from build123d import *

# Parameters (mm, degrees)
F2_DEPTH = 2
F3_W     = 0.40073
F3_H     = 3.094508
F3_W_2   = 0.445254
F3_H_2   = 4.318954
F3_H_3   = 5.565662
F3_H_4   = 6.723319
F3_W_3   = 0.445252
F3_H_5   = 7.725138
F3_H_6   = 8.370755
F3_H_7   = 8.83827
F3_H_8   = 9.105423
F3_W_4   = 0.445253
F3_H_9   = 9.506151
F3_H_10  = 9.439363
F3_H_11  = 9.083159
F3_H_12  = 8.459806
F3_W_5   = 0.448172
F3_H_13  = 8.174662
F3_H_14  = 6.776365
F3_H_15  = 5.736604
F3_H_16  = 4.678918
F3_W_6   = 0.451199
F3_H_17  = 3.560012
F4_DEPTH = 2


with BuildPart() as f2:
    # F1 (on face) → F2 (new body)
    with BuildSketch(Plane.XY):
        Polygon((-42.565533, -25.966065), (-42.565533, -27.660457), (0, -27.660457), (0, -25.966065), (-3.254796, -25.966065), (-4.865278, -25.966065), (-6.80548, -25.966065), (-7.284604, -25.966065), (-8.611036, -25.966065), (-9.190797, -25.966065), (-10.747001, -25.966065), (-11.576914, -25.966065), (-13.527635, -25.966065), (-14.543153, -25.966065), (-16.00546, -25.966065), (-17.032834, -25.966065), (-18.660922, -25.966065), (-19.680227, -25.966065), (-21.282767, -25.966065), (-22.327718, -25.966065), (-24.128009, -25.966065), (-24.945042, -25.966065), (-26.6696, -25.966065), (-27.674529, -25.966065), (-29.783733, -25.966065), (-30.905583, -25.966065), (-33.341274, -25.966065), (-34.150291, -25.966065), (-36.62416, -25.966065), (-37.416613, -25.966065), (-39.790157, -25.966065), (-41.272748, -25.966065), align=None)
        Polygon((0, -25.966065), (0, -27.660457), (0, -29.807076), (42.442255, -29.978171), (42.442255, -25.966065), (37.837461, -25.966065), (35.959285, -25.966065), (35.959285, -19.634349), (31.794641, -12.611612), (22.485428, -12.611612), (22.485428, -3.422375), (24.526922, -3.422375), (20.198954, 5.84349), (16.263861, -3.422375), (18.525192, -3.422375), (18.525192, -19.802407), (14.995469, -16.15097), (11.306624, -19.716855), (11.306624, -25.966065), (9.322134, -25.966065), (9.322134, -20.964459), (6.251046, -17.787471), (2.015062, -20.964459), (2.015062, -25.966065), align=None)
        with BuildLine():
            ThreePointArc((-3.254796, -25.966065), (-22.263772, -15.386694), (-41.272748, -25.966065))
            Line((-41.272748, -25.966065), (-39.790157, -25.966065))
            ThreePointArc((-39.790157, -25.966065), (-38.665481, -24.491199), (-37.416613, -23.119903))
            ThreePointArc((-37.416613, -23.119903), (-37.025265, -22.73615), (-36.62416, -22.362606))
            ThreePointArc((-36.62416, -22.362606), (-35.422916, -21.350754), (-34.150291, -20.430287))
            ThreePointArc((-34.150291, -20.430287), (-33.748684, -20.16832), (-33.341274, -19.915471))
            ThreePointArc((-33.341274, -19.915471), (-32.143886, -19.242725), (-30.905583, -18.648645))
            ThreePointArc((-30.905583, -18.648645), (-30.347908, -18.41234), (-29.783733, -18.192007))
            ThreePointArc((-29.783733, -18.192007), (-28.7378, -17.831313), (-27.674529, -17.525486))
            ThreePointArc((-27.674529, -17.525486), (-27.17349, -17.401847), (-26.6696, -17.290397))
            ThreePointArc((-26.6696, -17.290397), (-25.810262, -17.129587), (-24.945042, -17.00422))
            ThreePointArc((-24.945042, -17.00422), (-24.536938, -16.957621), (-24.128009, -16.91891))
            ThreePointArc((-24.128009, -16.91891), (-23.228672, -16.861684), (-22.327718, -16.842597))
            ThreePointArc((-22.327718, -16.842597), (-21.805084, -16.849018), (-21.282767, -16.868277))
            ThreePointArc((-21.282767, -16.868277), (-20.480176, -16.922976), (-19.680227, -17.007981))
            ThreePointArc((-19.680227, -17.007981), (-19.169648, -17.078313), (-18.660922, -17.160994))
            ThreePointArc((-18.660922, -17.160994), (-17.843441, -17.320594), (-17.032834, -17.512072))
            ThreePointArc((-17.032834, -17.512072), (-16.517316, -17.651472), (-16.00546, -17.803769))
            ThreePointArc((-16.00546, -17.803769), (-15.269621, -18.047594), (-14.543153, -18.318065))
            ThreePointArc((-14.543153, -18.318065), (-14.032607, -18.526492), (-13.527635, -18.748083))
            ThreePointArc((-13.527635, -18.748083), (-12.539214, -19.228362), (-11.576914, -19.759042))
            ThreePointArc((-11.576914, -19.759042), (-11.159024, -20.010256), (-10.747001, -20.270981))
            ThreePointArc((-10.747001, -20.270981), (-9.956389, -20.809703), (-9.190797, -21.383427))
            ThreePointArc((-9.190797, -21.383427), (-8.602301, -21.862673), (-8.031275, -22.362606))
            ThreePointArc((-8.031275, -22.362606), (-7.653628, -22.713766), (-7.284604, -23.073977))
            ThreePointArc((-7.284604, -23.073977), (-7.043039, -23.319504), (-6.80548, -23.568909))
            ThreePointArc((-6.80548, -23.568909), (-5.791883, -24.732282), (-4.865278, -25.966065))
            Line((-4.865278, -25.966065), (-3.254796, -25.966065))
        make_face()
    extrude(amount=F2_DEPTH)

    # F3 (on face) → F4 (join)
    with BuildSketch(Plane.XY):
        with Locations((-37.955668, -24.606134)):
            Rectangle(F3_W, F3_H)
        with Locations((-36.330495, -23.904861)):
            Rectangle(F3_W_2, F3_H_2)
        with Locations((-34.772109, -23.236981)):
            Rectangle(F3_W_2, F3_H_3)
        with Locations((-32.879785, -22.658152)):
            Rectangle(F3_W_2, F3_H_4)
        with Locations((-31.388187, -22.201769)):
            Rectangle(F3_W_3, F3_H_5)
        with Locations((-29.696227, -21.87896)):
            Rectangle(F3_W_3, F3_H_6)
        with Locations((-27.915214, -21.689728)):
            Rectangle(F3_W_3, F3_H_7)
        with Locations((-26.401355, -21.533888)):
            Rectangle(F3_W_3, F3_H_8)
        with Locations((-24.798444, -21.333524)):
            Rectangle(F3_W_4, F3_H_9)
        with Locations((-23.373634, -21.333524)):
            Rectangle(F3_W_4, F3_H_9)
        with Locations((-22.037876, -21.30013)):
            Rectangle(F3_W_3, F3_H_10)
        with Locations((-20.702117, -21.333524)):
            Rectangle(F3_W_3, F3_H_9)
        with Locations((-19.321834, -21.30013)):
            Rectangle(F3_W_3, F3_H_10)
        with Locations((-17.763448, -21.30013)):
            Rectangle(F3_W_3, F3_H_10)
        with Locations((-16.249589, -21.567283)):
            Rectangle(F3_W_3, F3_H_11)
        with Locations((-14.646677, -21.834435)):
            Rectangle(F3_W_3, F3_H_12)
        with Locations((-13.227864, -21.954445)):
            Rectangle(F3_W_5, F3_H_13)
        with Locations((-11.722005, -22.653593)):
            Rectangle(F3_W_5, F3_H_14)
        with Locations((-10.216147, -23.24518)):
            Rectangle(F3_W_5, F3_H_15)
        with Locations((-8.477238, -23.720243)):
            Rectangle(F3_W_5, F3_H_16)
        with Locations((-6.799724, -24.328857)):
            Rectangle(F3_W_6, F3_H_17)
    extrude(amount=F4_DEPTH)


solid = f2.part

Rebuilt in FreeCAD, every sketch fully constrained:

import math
import FreeCAD as App
import Part
import Sketcher
from FreeCAD import Vector
Q = App.Units.Quantity

doc = App.newDocument("Part")
params = doc.addObject("Spreadsheet::Sheet", "Params")
for row, (alias, value) in enumerate([
    ("pad1_length", "2 mm"),
    ("pad2_length", "2 mm"),
], start=1):
    params.set(f"A{row}", alias)
    params.set(f"B{row}", "=" + value)
    params.setAlias(f"B{row}", alias)

body = doc.addObject("PartDesign::Body", "Body")

# Sketch on XY plane
sketch1 = body.newObject("Sketcher::SketchObject", "Sketch")
sketch1.AttachmentSupport = (doc.getObject("XY_Plane"), [""])
sketch1.MapMode = "FlatFace"
sketch1.addGeometry(Part.LineSegment(Vector(-42.565533, -25.966065, 0), Vector(-42.565533, -27.660457, 0)), False)
sketch1.addGeometry(Part.LineSegment(Vector(-42.565533, -27.660457, 0), Vector(0, -27.660457, 0)), False)
sketch1.addGeometry(Part.LineSegment(Vector(0, -27.660457, 0), Vector(0, -29.807076, 0)), False)
sketch1.addGeometry(Part.LineSegment(Vector(0, -29.807076, 0), Vector(42.442255, -29.978171, 0)), False)
sketch1.addGeometry(Part.LineSegment(Vector(42.442255, -29.978171, 0), Vector(42.442255, -25.966065, 0)), False)
sketch1.addGeometry(Part.LineSegment(Vector(42.442255, -25.966065, 0), Vector(35.959285, -25.966065, 0)), False)
sketch1.addGeometry(Part.LineSegment(Vector(35.959285, -25.966065, 0), Vector(35.959285, -19.634349, 0)), False)
sketch1.addGeometry(Part.LineSegment(Vector(35.959285, -19.634349, 0), Vector(31.794641, -12.611612, 0)), False)
sketch1.addGeometry(Part.LineSegment(Vector(31.794641, -12.611612, 0), Vector(22.485428, -12.611612, 0)), False)
sketch1.addGeometry(Part.LineSegment(Vector(22.485428, -12.611612, 0), Vector(22.485428, -3.422375, 0)), False)
sketch1.addGeometry(Part.LineSegment(Vector(22.485428, -3.422375, 0), Vector(24.526922, -3.422375, 0)), False)
sketch1.addGeometry(Part.LineSegment(Vector(24.526922, -3.422375, 0), Vector(20.198954, 5.84349, 0)), False)
sketch1.addGeometry(Part.LineSegment(Vector(20.198954, 5.84349, 0), Vector(16.263861, -3.422375, 0)), False)
sketch1.addGeometry(Part.LineSegment(Vector(16.263861, -3.422375, 0), Vector(18.525192, -3.422375, 0)), False)
sketch1.addGeometry(Part.LineSegment(Vector(18.525192, -3.422375, 0), Vector(18.525192, -19.802407, 0)), False)
sketch1.addGeometry(Part.LineSegment(Vector(18.525192, -19.802407, 0), Vector(14.995469, -16.15097, 0)), False)
sketch1.addGeometry(Part.LineSegment(Vector(14.995469, -16.15097, 0), Vector(11.306624, -19.716855, 0)), False)
sketch1.addGeometry(Part.LineSegment(Vector(11.306624, -19.716855, 0), Vector(11.306624, -25.966065, 0)), False)
sketch1.addGeometry(Part.LineSegment(Vector(11.306624, -25.966065, 0), Vector(9.322134, -25.966065, 0)), False)
sketch1.addGeometry(Part.LineSegment(Vector(9.322134, -25.966065, 0), Vector(9.322134, -20.964459, 0)), False)
sketch1.addGeometry(Part.LineSegment(Vector(9.322134, -20.964459, 0), Vector(6.251046, -17.787471, 0)), False)
sketch1.addGeometry(Part.LineSegment(Vector(6.251046, -17.787471, 0), Vector(2.015062, -20.964459, 0)), False)
sketch1.addGeometry(Part.LineSegment(Vector(2.015062, -20.964459, 0), Vector(2.015062, -25.966065, 0)), False)
sketch1.addGeometry(Part.LineSegment(Vector(2.015062, -25.966065, 0), Vector(-3.254796, -25.966065, 0)), False)
sketch1.addGeometry(Part.ArcOfCircle(Part.Circle(Vector(-22.263772, -37.75401, 0), Vector(0, 0, 1), 22.367316), math.radians(31.804093), math.radians(148.195907)), False)
sketch1.addGeometry(Part.LineSegment(Vector(-41.272748, -25.966065, 0), Vector(-42.565533, -25.966065, 0)), False)
sketch1.addGeometry(Part.LineSegment(Vector(-4.865278, -25.966065, 0), Vector(-39.790157, -25.966065, 0)), False)
sketch1.addGeometry(Part.ArcOfCircle(Part.Circle(Vector(-22.327792, -38.115942, 0), Vector(0, 0, 1), 21.27331), math.radians(135.176701), math.radians(145.17077)), False)
sketch1.addGeometry(Part.ArcOfCircle(Part.Circle(Vector(-22.327565, -38.11616, 0), Vector(0, 0, 1), 21.273624), math.radians(132.224229), math.radians(135.176713)), False)
sketch1.addGeometry(Part.ArcOfCircle(Part.Circle(Vector(-22.327758, -38.115948, 0), Vector(0, 0, 1), 21.273338), math.radians(123.761984), math.radians(132.224228)), False)
sketch1.addGeometry(Part.ArcOfCircle(Part.Circle(Vector(-22.328098, -38.115408, 0), Vector(0, 0, 1), 21.2727), math.radians(121.179041), math.radians(123.762033)), False)
sketch1.addGeometry(Part.ArcOfCircle(Part.Circle(Vector(-22.327656, -38.116117, 0), Vector(0, 0, 1), 21.273535), math.radians(113.779668), math.radians(121.179071)), False)
sketch1.addGeometry(Part.ArcOfCircle(Part.Circle(Vector(-22.327668, -38.116147, 0), Vector(0, 0, 1), 21.273557), math.radians(110.516989), math.radians(113.779605)), False)
sketch1.addGeometry(Part.ArcOfCircle(Part.Circle(Vector(-22.327835, -38.115632, 0), Vector(0, 0, 1), 21.273017), math.radians(104.556637), math.radians(110.517054)), False)
sketch1.addGeometry(Part.ArcOfCircle(Part.Circle(Vector(-22.327227, -38.118047, 0), Vector(0, 0, 1), 21.275507), math.radians(101.776935), math.radians(104.556588)), False)
sketch1.addGeometry(Part.ArcOfCircle(Part.Circle(Vector(-22.327655, -38.11645, 0), Vector(0, 0, 1), 21.273857), math.radians(97.06718), math.radians(101.776684)), False)
sketch1.addGeometry(Part.ArcOfCircle(Part.Circle(Vector(-22.327685, -38.116124, 0), Vector(0, 0, 1), 21.273529), math.radians(94.8546), math.radians(97.067207)), False)
sketch1.addGeometry(Part.ArcOfCircle(Part.Circle(Vector(-22.327709, -38.116182, 0), Vector(0, 0, 1), 21.273585), math.radians(90.000023), math.radians(94.854522)), False)
sketch1.addGeometry(Part.ArcOfCircle(Part.Circle(Vector(-22.327719, -38.115654, 0), Vector(0, 0, 1), 21.273057), math.radians(87.184446), math.radians(89.999997)), False)
sketch1.addGeometry(Part.ArcOfCircle(Part.Circle(Vector(-22.327676, -38.115584, 0), Vector(0, 0, 1), 21.272985), math.radians(82.850935), math.radians(87.184553)), False)
sketch1.addGeometry(Part.ArcOfCircle(Part.Circle(Vector(-22.327621, -38.115334, 0), Vector(0, 0, 1), 21.27273), math.radians(80.074579), math.radians(82.850998)), False)
sketch1.addGeometry(Part.ArcOfCircle(Part.Circle(Vector(-22.327767, -38.116195, 0), Vector(0, 0, 1), 21.273604), math.radians(75.587756), math.radians(80.07459)), False)
sketch1.addGeometry(Part.ArcOfCircle(Part.Circle(Vector(-22.327345, -38.114737, 0), Vector(0, 0, 1), 21.272086), math.radians(72.710998), math.radians(75.587879)), False)
sketch1.addGeometry(Part.ArcOfCircle(Part.Circle(Vector(-22.328019, -38.116863, 0), Vector(0, 0, 1), 21.274316), math.radians(68.535302), math.radians(72.710968)), False)
sketch1.addGeometry(Part.ArcOfCircle(Part.Circle(Vector(-22.32734, -38.115091, 0), Vector(0, 0, 1), 21.272419), math.radians(65.564581), math.radians(68.535258)), False)
sketch1.addGeometry(Part.ArcOfCircle(Part.Circle(Vector(-22.327729, -38.116032, 0), Vector(0, 0, 1), 21.273437), math.radians(59.644527), math.radians(65.564675)), False)
sketch1.addGeometry(Part.ArcOfCircle(Part.Circle(Vector(-22.328183, -38.116769, 0), Vector(0, 0, 1), 21.274302), math.radians(57.018088), math.radians(59.644473)), False)
sketch1.addGeometry(Part.ArcOfCircle(Part.Circle(Vector(-22.327774, -38.116071, 0), Vector(0, 0, 1), 21.273494), math.radians(51.864164), math.radians(57.017989)), False)
sketch1.addGeometry(Part.ArcOfCircle(Part.Circle(Vector(-22.327438, -38.115675, 0), Vector(0, 0, 1), 21.272974), math.radians(47.775753), math.radians(51.864217)), False)
sketch1.addGeometry(Part.ArcOfCircle(Part.Circle(Vector(-22.327175, -38.115451, 0), Vector(0, 0, 1), 21.272632), math.radians(44.997911), math.radians(47.775872)), False)
sketch1.addGeometry(Part.ArcOfCircle(Part.Circle(Vector(-22.33106, -38.119229, 0), Vector(0, 0, 1), 21.278051), math.radians(43.142743), math.radians(44.997709)), False)
sketch1.addGeometry(Part.ArcOfCircle(Part.Circle(Vector(-22.327603, -38.115908, 0), Vector(0, 0, 1), 21.273257), math.radians(34.829216), math.radians(43.142581)), False)
sketch1.addConstraint(Sketcher.Constraint("Coincident", 0, 2, 1, 1))
sketch1.addConstraint(Sketcher.Constraint("Coincident", 1, 2, 2, 1))
sketch1.addConstraint(Sketcher.Constraint("Coincident", 2, 2, 3, 1))
sketch1.addConstraint(Sketcher.Constraint("Coincident", 3, 2, 4, 1))
sketch1.addConstraint(Sketcher.Constraint("Coincident", 4, 2, 5, 1))
sketch1.addConstraint(Sketcher.Constraint("Coincident", 5, 2, 6, 1))
sketch1.addConstraint(Sketcher.Constraint("Coincident", 6, 2, 7, 1))
sketch1.addConstraint(Sketcher.Constraint("Coincident", 7, 2, 8, 1))
sketch1.addConstraint(Sketcher.Constraint("Coincident", 8, 2, 9, 1))
sketch1.addConstraint(Sketcher.Constraint("Coincident", 9, 2, 10, 1))
sketch1.addConstraint(Sketcher.Constraint("Coincident", 10, 2, 11, 1))
sketch1.addConstraint(Sketcher.Constraint("Coincident", 11, 2, 12, 1))
sketch1.addConstraint(Sketcher.Constraint("Coincident", 12, 2, 13, 1))
sketch1.addConstraint(Sketcher.Constraint("Coincident", 13, 2, 14, 1))
sketch1.addConstraint(Sketcher.Constraint("Coincident", 14, 2, 15, 1))
sketch1.addConstraint(Sketcher.Constraint("Coincident", 15, 2, 16, 1))
sketch1.addConstraint(Sketcher.Constraint("Coincident", 16, 2, 17, 1))
sketch1.addConstraint(Sketcher.Constraint("Coincident", 17, 2, 18, 1))
sketch1.addConstraint(Sketcher.Constraint("Coincident", 18, 2, 19, 1))
sketch1.addConstraint(Sketcher.Constraint("Coincident", 19, 2, 20, 1))
sketch1.addConstraint(Sketcher.Constraint("Coincident", 20, 2, 21, 1))
sketch1.addConstraint(Sketcher.Constraint("Coincident", 21, 2, 22, 1))
sketch1.addConstraint(Sketcher.Constraint("Coincident", 22, 2, 23, 1))
sketch1.addConstraint(Sketcher.Constraint("Coincident", 23, 2, 24, 1))
sketch1.addConstraint(Sketcher.Constraint("Coincident", 24, 2, 25, 1))
sketch1.addConstraint(Sketcher.Constraint("Coincident", 25, 2, 0, 1))
sketch1.addConstraint(Sketcher.Constraint("Coincident", 26, 2, 27, 2))
sketch1.addConstraint(Sketcher.Constraint("Coincident", 27, 1, 28, 2))
sketch1.addConstraint(Sketcher.Constraint("Coincident", 28, 1, 29, 2))
sketch1.addConstraint(Sketcher.Constraint("Coincident", 29, 1, 30, 2))
sketch1.addConstraint(Sketcher.Constraint("Coincident", 30, 1, 31, 2))
sketch1.addConstraint(Sketcher.Constraint("Coincident", 31, 1, 32, 2))
sketch1.addConstraint(Sketcher.Constraint("Coincident", 32, 1, 33, 2))
sketch1.addConstraint(Sketcher.Constraint("Coincident", 33, 1, 34, 2))
sketch1.addConstraint(Sketcher.Constraint("Coincident", 34, 1, 35, 2))
sketch1.addConstraint(Sketcher.Constraint("Coincident", 35, 1, 36, 2))
sketch1.addConstraint(Sketcher.Constraint("Coincident", 36, 1, 37, 2))
sketch1.addConstraint(Sketcher.Constraint("Coincident", 37, 1, 38, 2))
sketch1.addConstraint(Sketcher.Constraint("Coincident", 38, 1, 39, 2))
sketch1.addConstraint(Sketcher.Constraint("Coincident", 39, 1, 40, 2))
sketch1.addConstraint(Sketcher.Constraint("Coincident", 40, 1, 41, 2))
sketch1.addConstraint(Sketcher.Constraint("Coincident", 41, 1, 42, 2))
sketch1.addConstraint(Sketcher.Constraint("Coincident", 42, 1, 43, 2))
sketch1.addConstraint(Sketcher.Constraint("Coincident", 43, 1, 44, 2))
sketch1.addConstraint(Sketcher.Constraint("Coincident", 44, 1, 45, 2))
sketch1.addConstraint(Sketcher.Constraint("Coincident", 45, 1, 46, 2))
sketch1.addConstraint(Sketcher.Constraint("Coincident", 46, 1, 47, 2))
sketch1.addConstraint(Sketcher.Constraint("Coincident", 47, 1, 48, 2))
sketch1.addConstraint(Sketcher.Constraint("Coincident", 48, 1, 49, 2))
sketch1.addConstraint(Sketcher.Constraint("Coincident", 49, 1, 50, 2))
sketch1.addConstraint(Sketcher.Constraint("Coincident", 50, 1, 51, 2))
sketch1.addConstraint(Sketcher.Constraint("Coincident", 51, 1, 26, 1))
sketch1.addConstraint(Sketcher.Constraint("Vertical", 0))
sketch1.addConstraint(Sketcher.Constraint("Horizontal", 1))
sketch1.addConstraint(Sketcher.Constraint("Vertical", 2))
sketch1.addConstraint(Sketcher.Constraint("Vertical", 4))
sketch1.addConstraint(Sketcher.Constraint("Horizontal", 5))
sketch1.addConstraint(Sketcher.Constraint("Vertical", 6))
sketch1.addConstraint(Sketcher.Constraint("Horizontal", 8))
sketch1.addConstraint(Sketcher.Constraint("Vertical", 9))
sketch1.addConstraint(Sketcher.Constraint("Horizontal", 10))
sketch1.addConstraint(Sketcher.Constraint("Horizontal", 13))
sketch1.addConstraint(Sketcher.Constraint("Vertical", 14))
sketch1.addConstraint(Sketcher.Constraint("Vertical", 17))
sketch1.addConstraint(Sketcher.Constraint("Horizontal", 18))
sketch1.addConstraint(Sketcher.Constraint("Vertical", 19))
sketch1.addConstraint(Sketcher.Constraint("Vertical", 22))
sketch1.addConstraint(Sketcher.Constraint("Horizontal", 23))
sketch1.addConstraint(Sketcher.Constraint("Horizontal", 25))
sketch1.addConstraint(Sketcher.Constraint("Horizontal", 26))
sketch1.addConstraint(Sketcher.Constraint("PointOnObject", 1, 2, -2))
sketch1.addConstraint(Sketcher.Constraint("Radius", 30, Q("21.2727 mm")))
sketch1.addConstraint(Sketcher.Constraint("Radius", 27, Q("21.27331 mm")))
sketch1.addConstraint(Sketcher.Constraint("Radius", 36, Q("21.273529 mm")))
sketch1.addConstraint(Sketcher.Constraint("Radius", 40, Q("21.27273 mm")))
sketch1.addConstraint(Sketcher.Constraint("Radius", 44, Q("21.272419 mm")))
sketch1.addConstraint(Sketcher.Constraint("Radius", 49, Q("21.272632 mm")))
sketch1.addConstraint(Sketcher.Constraint("Radius", 50, Q("21.278051 mm")))
sketch1.addConstraint(Sketcher.Constraint("DistanceX", 46, 1, -1, 1, Q("10.747001 mm")))
sketch1.addConstraint(Sketcher.Constraint("Radius", 24, Q("22.367316 mm")))
sketch1.addConstraint(Sketcher.Constraint("Radius", 28, Q("21.273624 mm")))
sketch1.addConstraint(Sketcher.Constraint("Radius", 29, Q("21.273338 mm")))
sketch1.addConstraint(Sketcher.Constraint("Radius", 31, Q("21.273535 mm")))
sketch1.addConstraint(Sketcher.Constraint("Radius", 32, Q("21.273557 mm")))
sketch1.addConstraint(Sketcher.Constraint("Radius", 33, Q("21.273017 mm")))
sketch1.addConstraint(Sketcher.Constraint("Radius", 34, Q("21.275507 mm")))
sketch1.addConstraint(Sketcher.Constraint("Radius", 35, Q("21.273857 mm")))
sketch1.addConstraint(Sketcher.Constraint("Radius", 37, Q("21.273585 mm")))
sketch1.addConstraint(Sketcher.Constraint("Radius", 38, Q("21.273057 mm")))
sketch1.addConstraint(Sketcher.Constraint("Radius", 39, Q("21.272985 mm")))
sketch1.addConstraint(Sketcher.Constraint("Radius", 41, Q("21.273604 mm")))
sketch1.addConstraint(Sketcher.Constraint("Radius", 42, Q("21.272086 mm")))
sketch1.addConstraint(Sketcher.Constraint("Radius", 43, Q("21.274316 mm")))
sketch1.addConstraint(Sketcher.Constraint("Radius", 45, Q("21.273437 mm")))
sketch1.addConstraint(Sketcher.Constraint("Radius", 46, Q("21.274302 mm")))
sketch1.addConstraint(Sketcher.Constraint("Radius", 47, Q("21.273494 mm")))
sketch1.addConstraint(Sketcher.Constraint("Radius", 48, Q("21.272974 mm")))
sketch1.addConstraint(Sketcher.Constraint("Radius", 51, Q("21.273257 mm")))
sketch1.addConstraint(Sketcher.Constraint("Distance", 3, Q("42.4426 mm")))
sketch1.addConstraint(Sketcher.Constraint("DistanceX", 5, 2, 5, 1, Q("6.48297 mm")))
sketch1.addConstraint(Sketcher.Constraint("DistanceX", 13, 1, 13, 2, Q("2.261331 mm")))
sketch1.addConstraint(Sketcher.Constraint("DistanceX", 18, 2, 18, 1, Q("1.98449 mm")))
sketch1.addConstraint(Sketcher.Constraint("DistanceX", 26, 2, 26, 1, Q("34.924879 mm")))
sketch1.addConstraint(Sketcher.Constraint("DistanceY", 2, 2, 2, 1, Q("2.146619 mm")))
sketch1.addConstraint(Sketcher.Constraint("DistanceY", 14, 2, 14, 1, Q("16.380032 mm")))
sketch1.addConstraint(Sketcher.Constraint("DistanceY", 17, 2, 17, 1, Q("6.24921 mm")))
sketch1.addConstraint(Sketcher.Constraint("DistanceX", 34, 1, -1, 1, Q("26.6696 mm")))
sketch1.addConstraint(Sketcher.Constraint("Distance", 20, Q("4.418691 mm")))
sketch1.addConstraint(Sketcher.Constraint("Distance", 21, Q("5.29498 mm")))
sketch1.addConstraint(Sketcher.Constraint("DistanceX", 1, 1, 1, 2, Q("42.565533 mm")))
sketch1.addConstraint(Sketcher.Constraint("DistanceX", 8, 2, 8, 1, Q("9.309213 mm")))
sketch1.addConstraint(Sketcher.Constraint("DistanceX", 10, 1, 10, 2, Q("2.041494 mm")))
sketch1.addConstraint(Sketcher.Constraint("DistanceX", 23, 2, 23, 1, Q("5.269858 mm")))
sketch1.addConstraint(Sketcher.Constraint("DistanceX", 25, 2, 25, 1, Q("1.292785 mm")))
sketch1.addConstraint(Sketcher.Constraint("DistanceY", 0, 2, 0, 1, Q("1.694392 mm")))
sketch1.addConstraint(Sketcher.Constraint("DistanceY", 4, 1, 4, 2, Q("4.012106 mm")))
sketch1.addConstraint(Sketcher.Constraint("DistanceY", 6, 1, 6, 2, Q("6.331716 mm")))
sketch1.addConstraint(Sketcher.Constraint("DistanceY", 9, 1, 9, 2, Q("9.189237 mm")))
sketch1.addConstraint(Sketcher.Constraint("DistanceY", 19, 1, 19, 2, Q("5.001606 mm")))
sketch1.addConstraint(Sketcher.Constraint("DistanceY", 22, 2, 22, 1, Q("5.001606 mm")))
sketch1.addConstraint(Sketcher.Constraint("DistanceX", 24, 3, -1, 1, Q("22.263772 mm")))
sketch1.addConstraint(Sketcher.Constraint("DistanceY", 24, 3, -1, 1, Q("37.75401 mm")))
sketch1.addConstraint(Sketcher.Constraint("DistanceX", 27, 3, -1, 1, Q("22.327792 mm")))
sketch1.addConstraint(Sketcher.Constraint("DistanceY", 27, 3, -1, 1, Q("38.115942 mm")))
sketch1.addConstraint(Sketcher.Constraint("DistanceY", 28, 3, -1, 1, Q("38.11616 mm")))
sketch1.addConstraint(Sketcher.Constraint("DistanceX", 29, 3, -1, 1, Q("22.327758 mm")))
sketch1.addConstraint(Sketcher.Constraint("DistanceX", 32, 3, -1, 1, Q("22.327668 mm")))
sketch1.addConstraint(Sketcher.Constraint("DistanceY", 33, 3, -1, 1, Q("38.115632 mm")))
sketch1.addConstraint(Sketcher.Constraint("DistanceY", 35, 3, -1, 1, Q("38.11645 mm")))
sketch1.addConstraint(Sketcher.Constraint("DistanceX", 37, 3, -1, 1, Q("22.327709 mm")))
sketch1.addConstraint(Sketcher.Constraint("DistanceY", 37, 3, -1, 1, Q("38.116182 mm")))
sketch1.addConstraint(Sketcher.Constraint("DistanceX", 38, 3, -1, 1, Q("22.327719 mm")))
sketch1.addConstraint(Sketcher.Constraint("DistanceX", 40, 3, -1, 1, Q("22.327621 mm")))
sketch1.addConstraint(Sketcher.Constraint("DistanceX", 43, 3, -1, 1, Q("22.328019 mm")))
sketch1.addConstraint(Sketcher.Constraint("DistanceX", 44, 3, -1, 1, Q("22.32734 mm")))
sketch1.addConstraint(Sketcher.Constraint("DistanceY", 44, 3, -1, 1, Q("38.115091 mm")))
sketch1.addConstraint(Sketcher.Constraint("DistanceX", 45, 3, -1, 1, Q("22.327729 mm")))
sketch1.addConstraint(Sketcher.Constraint("DistanceY", 46, 3, -1, 1, Q("38.116769 mm")))
sketch1.addConstraint(Sketcher.Constraint("DistanceY", 47, 3, -1, 1, Q("38.116071 mm")))
sketch1.addConstraint(Sketcher.Constraint("DistanceY", 49, 3, -1, 1, Q("38.115451 mm")))
sketch1.addConstraint(Sketcher.Constraint("DistanceX", 50, 3, -1, 1, Q("22.33106 mm")))
sketch1.addConstraint(Sketcher.Constraint("DistanceY", 50, 3, -1, 1, Q("38.119229 mm")))
sketch1.addConstraint(Sketcher.Constraint("DistanceY", 3, 2, -1, 1, Q("29.978171 mm")))
sketch1.addConstraint(Sketcher.Constraint("DistanceX", -1, 1, 7, 2, Q("31.794641 mm")))
sketch1.addConstraint(Sketcher.Constraint("DistanceY", 7, 2, -1, 1, Q("12.611612 mm")))
sketch1.addConstraint(Sketcher.Constraint("DistanceY", -1, 1, 11, 2, Q("5.84349 mm")))
sketch1.addConstraint(Sketcher.Constraint("DistanceX", -1, 1, 12, 2, Q("16.263861 mm")))
sketch1.addConstraint(Sketcher.Constraint("DistanceX", -1, 1, 15, 2, Q("14.995469 mm")))
sketch1.addConstraint(Sketcher.Constraint("DistanceY", 15, 2, -1, 1, Q("16.15097 mm")))
sketch1.addConstraint(Sketcher.Constraint("DistanceY", 19, 2, -1, 1, Q("20.964459 mm")))
sketch1.addConstraint(Sketcher.Constraint("DistanceY", 20, 2, -1, 1, Q("17.787471 mm")))
sketch1.addConstraint(Sketcher.Constraint("DistanceX", -1, 1, 21, 2, Q("2.015062 mm")))
sketch1.addConstraint(Sketcher.Constraint("DistanceX", 28, 1, -1, 1, Q("36.62416 mm")))
sketch1.addConstraint(Sketcher.Constraint("DistanceX", 29, 1, -1, 1, Q("34.150291 mm")))
sketch1.addConstraint(Sketcher.Constraint("DistanceY", 30, 1, -1, 1, Q("19.915471 mm")))
sketch1.addConstraint(Sketcher.Constraint("DistanceX", 33, 1, -1, 1, Q("27.674529 mm")))
sketch1.addConstraint(Sketcher.Constraint("DistanceY", 35, 1, -1, 1, Q("17.00422 mm")))
sketch1.addConstraint(Sketcher.Constraint("DistanceX", 36, 1, -1, 1, Q("24.128009 mm")))
sketch1.addConstraint(Sketcher.Constraint("DistanceX", 37, 1, -1, 1, Q("22.327718 mm")))
sketch1.addConstraint(Sketcher.Constraint("DistanceY", 39, 1, -1, 1, Q("17.007981 mm")))
sketch1.addConstraint(Sketcher.Constraint("DistanceY", 41, 1, -1, 1, Q("17.512072 mm")))
sketch1.addConstraint(Sketcher.Constraint("DistanceX", 42, 1, -1, 1, Q("16.00546 mm")))
sketch1.addConstraint(Sketcher.Constraint("DistanceY", 45, 1, -1, 1, Q("19.759042 mm")))
sketch1.addConstraint(Sketcher.Constraint("DistanceX", 50, 1, -1, 1, Q("6.80548 mm")))
sketch1.addConstraint(Sketcher.Constraint("DistanceX", 51, 1, -1, 1, Q("4.865278 mm")))
sketch1.addConstraint(Sketcher.Constraint("Distance", 11, Q("10.226806 mm")))
sketch1.addConstraint(Sketcher.Constraint("Distance", 12, Q("10.066837 mm")))
sketch1.addConstraint(Sketcher.Constraint("DistanceX", 30, 3, -1, 1, Q("22.328098 mm")))
sketch1.addConstraint(Sketcher.Constraint("DistanceX", 31, 3, -1, 1, Q("22.327656 mm")))
sketch1.addConstraint(Sketcher.Constraint("DistanceX", 34, 3, -1, 1, Q("22.327227 mm")))
sketch1.addConstraint(Sketcher.Constraint("DistanceX", 39, 3, -1, 1, Q("22.327676 mm")))
sketch1.addConstraint(Sketcher.Constraint("DistanceX", 41, 3, -1, 1, Q("22.327767 mm")))
sketch1.addConstraint(Sketcher.Constraint("DistanceX", 27, 1, -1, 1, Q("37.416613 mm")))
sketch1.addConstraint(Sketcher.Constraint("DistanceX", 31, 1, -1, 1, Q("30.905583 mm")))
sketch1.addConstraint(Sketcher.Constraint("DistanceX", 32, 1, -1, 1, Q("29.783733 mm")))
sketch1.addConstraint(Sketcher.Constraint("DistanceX", 38, 1, -1, 1, Q("21.282767 mm")))
sketch1.addConstraint(Sketcher.Constraint("DistanceX", 40, 1, -1, 1, Q("18.660922 mm")))
sketch1.addConstraint(Sketcher.Constraint("DistanceX", 43, 1, -1, 1, Q("14.543153 mm")))
sketch1.addConstraint(Sketcher.Constraint("DistanceX", 44, 1, -1, 1, Q("13.527635 mm")))
sketch1.addConstraint(Sketcher.Constraint("DistanceX", 47, 1, -1, 1, Q("9.190797 mm")))
sketch1.addConstraint(Sketcher.Constraint("DistanceX", 48, 1, -1, 1, Q("8.031275 mm")))
sketch1.addConstraint(Sketcher.Constraint("DistanceX", 49, 1, -1, 1, Q("7.284604 mm")))
pad1 = body.newObject("PartDesign::Pad", "Pad")
pad1.Profile = sketch1
pad1.setExpression("Length", "Params.pad1_length")

# Sketch on XY plane
sketch2 = body.newObject("Sketcher::SketchObject", "Sketch001")
sketch2.AttachmentSupport = (doc.getObject("XY_Plane"), [""])
sketch2.MapMode = "FlatFace"
sketch2.addGeometry(Part.LineSegment(Vector(-38.156033, -23.05888, 0), Vector(-38.156033, -26.153388, 0)), False)
sketch2.addGeometry(Part.LineSegment(Vector(-38.156033, -26.153388, 0), Vector(-37.755303, -26.153388, 0)), False)
sketch2.addGeometry(Part.LineSegment(Vector(-37.755303, -26.153388, 0), Vector(-37.755303, -23.05888, 0)), False)
sketch2.addGeometry(Part.LineSegment(Vector(-37.755303, -23.05888, 0), Vector(-38.156033, -23.05888, 0)), False)
sketch2.addGeometry(Part.LineSegment(Vector(-36.553122, -21.745384, 0), Vector(-36.553122, -26.064338, 0)), False)
sketch2.addGeometry(Part.LineSegment(Vector(-36.553122, -26.064338, 0), Vector(-36.107868, -26.064338, 0)), False)
sketch2.addGeometry(Part.LineSegment(Vector(-36.107868, -26.064338, 0), Vector(-36.107868, -21.745384, 0)), False)
sketch2.addGeometry(Part.LineSegment(Vector(-36.107868, -21.745384, 0), Vector(-36.553122, -21.745384, 0)), False)
sketch2.addGeometry(Part.LineSegment(Vector(-34.994736, -20.45415, 0), Vector(-34.994736, -26.019812, 0)), False)
sketch2.addGeometry(Part.LineSegment(Vector(-34.994736, -26.019812, 0), Vector(-34.549482, -26.019812, 0)), False)
sketch2.addGeometry(Part.LineSegment(Vector(-34.549482, -26.019812, 0), Vector(-34.549482, -20.45415, 0)), False)
sketch2.addGeometry(Part.LineSegment(Vector(-34.549482, -20.45415, 0), Vector(-34.994736, -20.45415, 0)), False)
sketch2.addGeometry(Part.LineSegment(Vector(-33.102412, -19.296492, 0), Vector(-33.102412, -26.019811, 0)), False)
sketch2.addGeometry(Part.LineSegment(Vector(-33.102412, -26.019811, 0), Vector(-32.657158, -26.019811, 0)), False)
sketch2.addGeometry(Part.LineSegment(Vector(-32.657158, -26.019811, 0), Vector(-32.657158, -19.296492, 0)), False)
sketch2.addGeometry(Part.LineSegment(Vector(-32.657158, -19.296492, 0), Vector(-33.102412, -19.296492, 0)), False)
sketch2.addGeometry(Part.LineSegment(Vector(-31.610813, -18.3392, 0), Vector(-31.610813, -26.064338, 0)), False)
sketch2.addGeometry(Part.LineSegment(Vector(-31.610813, -26.064338, 0), Vector(-31.165561, -26.064338, 0)), False)
sketch2.addGeometry(Part.LineSegment(Vector(-31.165561, -26.064338, 0), Vector(-31.165561, -18.3392, 0)), False)
sketch2.addGeometry(Part.LineSegment(Vector(-31.165561, -18.3392, 0), Vector(-31.610813, -18.3392, 0)), False)
sketch2.addGeometry(Part.LineSegment(Vector(-29.918853, -17.693583, 0), Vector(-29.918853, -26.064338, 0)), False)
sketch2.addGeometry(Part.LineSegment(Vector(-29.918853, -26.064338, 0), Vector(-29.473601, -26.064338, 0)), False)
sketch2.addGeometry(Part.LineSegment(Vector(-29.473601, -26.064338, 0), Vector(-29.473601, -17.693583, 0)), False)
sketch2.addGeometry(Part.LineSegment(Vector(-29.473601, -17.693583, 0), Vector(-29.918853, -17.693583, 0)), False)
sketch2.addGeometry(Part.LineSegment(Vector(-28.13784, -17.270593, 0), Vector(-28.13784, -26.108863, 0)), False)
sketch2.addGeometry(Part.LineSegment(Vector(-28.13784, -26.108863, 0), Vector(-27.692588, -26.108863, 0)), False)
sketch2.addGeometry(Part.LineSegment(Vector(-27.692588, -26.108863, 0), Vector(-27.692588, -17.270593, 0)), False)
sketch2.addGeometry(Part.LineSegment(Vector(-27.692588, -17.270593, 0), Vector(-28.13784, -17.270593, 0)), False)
sketch2.addGeometry(Part.LineSegment(Vector(-26.623981, -16.981177, 0), Vector(-26.623981, -26.086599, 0)), False)
sketch2.addGeometry(Part.LineSegment(Vector(-26.623981, -26.086599, 0), Vector(-26.178729, -26.086599, 0)), False)
sketch2.addGeometry(Part.LineSegment(Vector(-26.178729, -26.086599, 0), Vector(-26.178729, -16.981177, 0)), False)
sketch2.addGeometry(Part.LineSegment(Vector(-26.178729, -16.981177, 0), Vector(-26.623981, -16.981177, 0)), False)
sketch2.addGeometry(Part.LineSegment(Vector(-25.021071, -16.580448, 0), Vector(-25.021071, -26.086599, 0)), False)
sketch2.addGeometry(Part.LineSegment(Vector(-25.021071, -26.086599, 0), Vector(-24.575817, -26.086599, 0)), False)
sketch2.addGeometry(Part.LineSegment(Vector(-24.575817, -26.086599, 0), Vector(-24.575817, -16.580448, 0)), False)
sketch2.addGeometry(Part.LineSegment(Vector(-24.575817, -16.580448, 0), Vector(-25.021071, -16.580448, 0)), False)
sketch2.addGeometry(Part.LineSegment(Vector(-23.59626, -16.580448, 0), Vector(-23.59626, -26.086599, 0)), False)
sketch2.addGeometry(Part.LineSegment(Vector(-23.59626, -26.086599, 0), Vector(-23.151007, -26.086599, 0)), False)
sketch2.addGeometry(Part.LineSegment(Vector(-23.151007, -26.086599, 0), Vector(-23.151007, -16.580448, 0)), False)
sketch2.addGeometry(Part.LineSegment(Vector(-23.151007, -16.580448, 0), Vector(-23.59626, -16.580448, 0)), False)
sketch2.addGeometry(Part.LineSegment(Vector(-22.260502, -16.580448, 0), Vector(-22.260502, -26.019811, 0)), False)
sketch2.addGeometry(Part.LineSegment(Vector(-22.260502, -26.019811, 0), Vector(-21.81525, -26.019811, 0)), False)
sketch2.addGeometry(Part.LineSegment(Vector(-21.81525, -26.019811, 0), Vector(-21.81525, -16.580448, 0)), False)
sketch2.addGeometry(Part.LineSegment(Vector(-21.81525, -16.580448, 0), Vector(-22.260502, -16.580448, 0)), False)
sketch2.addGeometry(Part.LineSegment(Vector(-20.924743, -16.580448, 0), Vector(-20.924743, -26.086599, 0)), False)
sketch2.addGeometry(Part.LineSegment(Vector(-20.924743, -26.086599, 0), Vector(-20.479491, -26.086599, 0)), False)
sketch2.addGeometry(Part.LineSegment(Vector(-20.479491, -26.086599, 0), Vector(-20.479491, -16.580448, 0)), False)
sketch2.addGeometry(Part.LineSegment(Vector(-20.479491, -16.580448, 0), Vector(-20.924743, -16.580448, 0)), False)
sketch2.addGeometry(Part.LineSegment(Vector(-19.54446, -16.580448, 0), Vector(-19.54446, -26.019811, 0)), False)
sketch2.addGeometry(Part.LineSegment(Vector(-19.54446, -26.019811, 0), Vector(-19.099208, -26.019811, 0)), False)
sketch2.addGeometry(Part.LineSegment(Vector(-19.099208, -26.019811, 0), Vector(-19.099208, -16.580448, 0)), False)
sketch2.addGeometry(Part.LineSegment(Vector(-19.099208, -16.580448, 0), Vector(-19.54446, -16.580448, 0)), False)
sketch2.addGeometry(Part.LineSegment(Vector(-17.986074, -16.580448, 0), Vector(-17.986074, -26.019811, 0)), False)
sketch2.addGeometry(Part.LineSegment(Vector(-17.986074, -26.019811, 0), Vector(-17.540822, -26.019811, 0)), False)
sketch2.addGeometry(Part.LineSegment(Vector(-17.540822, -26.019811, 0), Vector(-17.540822, -16.580448, 0)), False)
sketch2.addGeometry(Part.LineSegment(Vector(-17.540822, -16.580448, 0), Vector(-17.986074, -16.580448, 0)), False)
sketch2.addGeometry(Part.LineSegment(Vector(-16.472215, -17.025703, 0), Vector(-16.472215, -26.108863, 0)), False)
sketch2.addGeometry(Part.LineSegment(Vector(-16.472215, -26.108863, 0), Vector(-16.026963, -26.108863, 0)), False)
sketch2.addGeometry(Part.LineSegment(Vector(-16.026963, -26.108863, 0), Vector(-16.026963, -17.025703, 0)), False)
sketch2.addGeometry(Part.LineSegment(Vector(-16.026963, -17.025703, 0), Vector(-16.472215, -17.025703, 0)), False)
sketch2.addGeometry(Part.LineSegment(Vector(-14.869303, -17.604532, 0), Vector(-14.869303, -26.064338, 0)), False)
sketch2.addGeometry(Part.LineSegment(Vector(-14.869303, -26.064338, 0), Vector(-14.424051, -26.064338, 0)), False)
sketch2.addGeometry(Part.LineSegment(Vector(-14.424051, -26.064338, 0), Vector(-14.424051, -17.604532, 0)), False)
sketch2.addGeometry(Part.LineSegment(Vector(-14.424051, -17.604532, 0), Vector(-14.869303, -17.604532, 0)), False)
sketch2.addGeometry(Part.LineSegment(Vector(-13.45195, -17.867114, 0), Vector(-13.45195, -26.041776, 0)), False)
sketch2.addGeometry(Part.LineSegment(Vector(-13.45195, -26.041776, 0), Vector(-13.003778, -26.041776, 0)), False)
sketch2.addGeometry(Part.LineSegment(Vector(-13.003778, -26.041776, 0), Vector(-13.003778, -17.867114, 0)), False)
sketch2.addGeometry(Part.LineSegment(Vector(-13.003778, -17.867114, 0), Vector(-13.45195, -17.867114, 0)), False)
sketch2.addGeometry(Part.LineSegment(Vector(-11.946091, -19.265411, 0), Vector(-11.946091, -26.041775, 0)), False)
sketch2.addGeometry(Part.LineSegment(Vector(-11.946091, -26.041775, 0), Vector(-11.497919, -26.041775, 0)), False)
sketch2.addGeometry(Part.LineSegment(Vector(-11.497919, -26.041775, 0), Vector(-11.497919, -19.265411, 0)), False)
sketch2.addGeometry(Part.LineSegment(Vector(-11.497919, -19.265411, 0), Vector(-11.946091, -19.265411, 0)), False)
sketch2.addGeometry(Part.LineSegment(Vector(-10.440233, -20.376878, 0), Vector(-10.440233, -26.113482, 0)), False)
sketch2.addGeometry(Part.LineSegment(Vector(-10.440233, -26.113482, 0), Vector(-9.992061, -26.113482, 0)), False)
sketch2.addGeometry(Part.LineSegment(Vector(-9.992061, -26.113482, 0), Vector(-9.992061, -20.376878, 0)), False)
sketch2.addGeometry(Part.LineSegment(Vector(-9.992061, -20.376878, 0), Vector(-10.440233, -20.376878, 0)), False)
sketch2.addGeometry(Part.LineSegment(Vector(-8.701324, -21.380784, 0), Vector(-8.701324, -26.059702, 0)), False)
sketch2.addGeometry(Part.LineSegment(Vector(-8.701324, -26.059702, 0), Vector(-8.253152, -26.059702, 0)), False)
sketch2.addGeometry(Part.LineSegment(Vector(-8.253152, -26.059702, 0), Vector(-8.253152, -21.380784, 0)), False)
sketch2.addGeometry(Part.LineSegment(Vector(-8.253152, -21.380784, 0), Vector(-8.701324, -21.380784, 0)), False)
sketch2.addGeometry(Part.LineSegment(Vector(-7.025323, -22.548851, 0), Vector(-7.025323, -26.108863, 0)), False)
sketch2.addGeometry(Part.LineSegment(Vector(-7.025323, -26.108863, 0), Vector(-6.574124, -26.108863, 0)), False)
sketch2.addGeometry(Part.LineSegment(Vector(-6.574124, -26.108863, 0), Vector(-6.574124, -22.548851, 0)), False)
sketch2.addGeometry(Part.LineSegment(Vector(-6.574124, -22.548851, 0), Vector(-7.025323, -22.548851, 0)), False)
sketch2.addConstraint(Sketcher.Constraint("Coincident", 0, 2, 1, 1))
sketch2.addConstraint(Sketcher.Constraint("Coincident", 1, 2, 2, 1))
sketch2.addConstraint(Sketcher.Constraint("Coincident", 2, 2, 3, 1))
sketch2.addConstraint(Sketcher.Constraint("Coincident", 3, 2, 0, 1))
sketch2.addConstraint(Sketcher.Constraint("Coincident", 4, 2, 5, 1))
sketch2.addConstraint(Sketcher.Constraint("Coincident", 5, 2, 6, 1))
sketch2.addConstraint(Sketcher.Constraint("Coincident", 6, 2, 7, 1))
sketch2.addConstraint(Sketcher.Constraint("Coincident", 7, 2, 4, 1))
sketch2.addConstraint(Sketcher.Constraint("Coincident", 8, 2, 9, 1))
sketch2.addConstraint(Sketcher.Constraint("Coincident", 9, 2, 10, 1))
sketch2.addConstraint(Sketcher.Constraint("Coincident", 10, 2, 11, 1))
sketch2.addConstraint(Sketcher.Constraint("Coincident", 11, 2, 8, 1))
sketch2.addConstraint(Sketcher.Constraint("Coincident", 12, 2, 13, 1))
sketch2.addConstraint(Sketcher.Constraint("Coincident", 13, 2, 14, 1))
sketch2.addConstraint(Sketcher.Constraint("Coincident", 14, 2, 15, 1))
sketch2.addConstraint(Sketcher.Constraint("Coincident", 15, 2, 12, 1))
sketch2.addConstraint(Sketcher.Constraint("Coincident", 16, 2, 17, 1))
sketch2.addConstraint(Sketcher.Constraint("Coincident", 17, 2, 18, 1))
sketch2.addConstraint(Sketcher.Constraint("Coincident", 18, 2, 19, 1))
sketch2.addConstraint(Sketcher.Constraint("Coincident", 19, 2, 16, 1))
sketch2.addConstraint(Sketcher.Constraint("Coincident", 20, 2, 21, 1))
sketch2.addConstraint(Sketcher.Constraint("Coincident", 21, 2, 22, 1))
sketch2.addConstraint(Sketcher.Constraint("Coincident", 22, 2, 23, 1))
sketch2.addConstraint(Sketcher.Constraint("Coincident", 23, 2, 20, 1))
sketch2.addConstraint(Sketcher.Constraint("Coincident", 24, 2, 25, 1))
sketch2.addConstraint(Sketcher.Constraint("Coincident", 25, 2, 26, 1))
sketch2.addConstraint(Sketcher.Constraint("Coincident", 26, 2, 27, 1))
sketch2.addConstraint(Sketcher.Constraint("Coincident", 27, 2, 24, 1))
sketch2.addConstraint(Sketcher.Constraint("Coincident", 28, 2, 29, 1))
sketch2.addConstraint(Sketcher.Constraint("Coincident", 29, 2, 30, 1))
sketch2.addConstraint(Sketcher.Constraint("Coincident", 30, 2, 31, 1))
sketch2.addConstraint(Sketcher.Constraint("Coincident", 31, 2, 28, 1))
sketch2.addConstraint(Sketcher.Constraint("Coincident", 32, 2, 33, 1))
sketch2.addConstraint(Sketcher.Constraint("Coincident", 33, 2, 34, 1))
sketch2.addConstraint(Sketcher.Constraint("Coincident", 34, 2, 35, 1))
sketch2.addConstraint(Sketcher.Constraint("Coincident", 35, 2, 32, 1))
sketch2.addConstraint(Sketcher.Constraint("Coincident", 36, 2, 37, 1))
sketch2.addConstraint(Sketcher.Constraint("Coincident", 37, 2, 38, 1))
sketch2.addConstraint(Sketcher.Constraint("Coincident", 38, 2, 39, 1))
sketch2.addConstraint(Sketcher.Constraint("Coincident", 39, 2, 36, 1))
sketch2.addConstraint(Sketcher.Constraint("Coincident", 40, 2, 41, 1))
sketch2.addConstraint(Sketcher.Constraint("Coincident", 41, 2, 42, 1))
sketch2.addConstraint(Sketcher.Constraint("Coincident", 42, 2, 43, 1))
sketch2.addConstraint(Sketcher.Constraint("Coincident", 43, 2, 40, 1))
sketch2.addConstraint(Sketcher.Constraint("Coincident", 44, 2, 45, 1))
sketch2.addConstraint(Sketcher.Constraint("Coincident", 45, 2, 46, 1))
sketch2.addConstraint(Sketcher.Constraint("Coincident", 46, 2, 47, 1))
sketch2.addConstraint(Sketcher.Constraint("Coincident", 47, 2, 44, 1))
sketch2.addConstraint(Sketcher.Constraint("Coincident", 48, 2, 49, 1))
sketch2.addConstraint(Sketcher.Constraint("Coincident", 49, 2, 50, 1))
sketch2.addConstraint(Sketcher.Constraint("Coincident", 50, 2, 51, 1))
sketch2.addConstraint(Sketcher.Constraint("Coincident", 51, 2, 48, 1))
sketch2.addConstraint(Sketcher.Constraint("Coincident", 52, 2, 53, 1))
sketch2.addConstraint(Sketcher.Constraint("Coincident", 53, 2, 54, 1))
sketch2.addConstraint(Sketcher.Constraint("Coincident", 54, 2, 55, 1))
sketch2.addConstraint(Sketcher.Constraint("Coincident", 55, 2, 52, 1))
sketch2.addConstraint(Sketcher.Constraint("Coincident", 56, 2, 57, 1))
sketch2.addConstraint(Sketcher.Constraint("Coincident", 57, 2, 58, 1))
sketch2.addConstraint(Sketcher.Constraint("Coincident", 58, 2, 59, 1))
sketch2.addConstraint(Sketcher.Constraint("Coincident", 59, 2, 56, 1))
sketch2.addConstraint(Sketcher.Constraint("Coincident", 60, 2, 61, 1))
sketch2.addConstraint(Sketcher.Constraint("Coincident", 61, 2, 62, 1))
sketch2.addConstraint(Sketcher.Constraint("Coincident", 62, 2, 63, 1))
sketch2.addConstraint(Sketcher.Constraint("Coincident", 63, 2, 60, 1))
sketch2.addConstraint(Sketcher.Constraint("Coincident", 64, 2, 65, 1))
sketch2.addConstraint(Sketcher.Constraint("Coincident", 65, 2, 66, 1))
sketch2.addConstraint(Sketcher.Constraint("Coincident", 66, 2, 67, 1))
sketch2.addConstraint(Sketcher.Constraint("Coincident", 67, 2, 64, 1))
sketch2.addConstraint(Sketcher.Constraint("Coincident", 68, 2, 69, 1))
sketch2.addConstraint(Sketcher.Constraint("Coincident", 69, 2, 70, 1))
sketch2.addConstraint(Sketcher.Constraint("Coincident", 70, 2, 71, 1))
sketch2.addConstraint(Sketcher.Constraint("Coincident", 71, 2, 68, 1))
sketch2.addConstraint(Sketcher.Constraint("Coincident", 72, 2, 73, 1))
sketch2.addConstraint(Sketcher.Constraint("Coincident", 73, 2, 74, 1))
sketch2.addConstraint(Sketcher.Constraint("Coincident", 74, 2, 75, 1))
sketch2.addConstraint(Sketcher.Constraint("Coincident", 75, 2, 72, 1))
sketch2.addConstraint(Sketcher.Constraint("Coincident", 76, 2, 77, 1))
sketch2.addConstraint(Sketcher.Constraint("Coincident", 77, 2, 78, 1))
sketch2.addConstraint(Sketcher.Constraint("Coincident", 78, 2, 79, 1))
sketch2.addConstraint(Sketcher.Constraint("Coincident", 79, 2, 76, 1))
sketch2.addConstraint(Sketcher.Constraint("Coincident", 80, 2, 81, 1))
sketch2.addConstraint(Sketcher.Constraint("Coincident", 81, 2, 82, 1))
sketch2.addConstraint(Sketcher.Constraint("Coincident", 82, 2, 83, 1))
sketch2.addConstraint(Sketcher.Constraint("Coincident", 83, 2, 80, 1))
sketch2.addConstraint(Sketcher.Constraint("Vertical", 0))
sketch2.addConstraint(Sketcher.Constraint("Horizontal", 1))
sketch2.addConstraint(Sketcher.Constraint("Vertical", 2))
sketch2.addConstraint(Sketcher.Constraint("Horizontal", 3))
sketch2.addConstraint(Sketcher.Constraint("Vertical", 4))
sketch2.addConstraint(Sketcher.Constraint("Horizontal", 5))
sketch2.addConstraint(Sketcher.Constraint("Vertical", 6))
sketch2.addConstraint(Sketcher.Constraint("Horizontal", 7))
sketch2.addConstraint(Sketcher.Constraint("Vertical", 8))
sketch2.addConstraint(Sketcher.Constraint("Horizontal", 9))
sketch2.addConstraint(Sketcher.Constraint("Vertical", 10))
sketch2.addConstraint(Sketcher.Constraint("Horizontal", 11))
sketch2.addConstraint(Sketcher.Constraint("Vertical", 12))
sketch2.addConstraint(Sketcher.Constraint("Horizontal", 13))
sketch2.addConstraint(Sketcher.Constraint("Vertical", 14))
sketch2.addConstraint(Sketcher.Constraint("Horizontal", 15))
sketch2.addConstraint(Sketcher.Constraint("Vertical", 16))
sketch2.addConstraint(Sketcher.Constraint("Horizontal", 17))
sketch2.addConstraint(Sketcher.Constraint("Vertical", 18))
sketch2.addConstraint(Sketcher.Constraint("Horizontal", 19))
sketch2.addConstraint(Sketcher.Constraint("Vertical", 20))
sketch2.addConstraint(Sketcher.Constraint("Horizontal", 21))
sketch2.addConstraint(Sketcher.Constraint("Vertical", 22))
sketch2.addConstraint(Sketcher.Constraint("Horizontal", 23))
sketch2.addConstraint(Sketcher.Constraint("Vertical", 24))
sketch2.addConstraint(Sketcher.Constraint("Horizontal", 25))
sketch2.addConstraint(Sketcher.Constraint("Vertical", 26))
sketch2.addConstraint(Sketcher.Constraint("Horizontal", 27))
sketch2.addConstraint(Sketcher.Constraint("Vertical", 28))
sketch2.addConstraint(Sketcher.Constraint("Horizontal", 29))
sketch2.addConstraint(Sketcher.Constraint("Vertical", 30))
sketch2.addConstraint(Sketcher.Constraint("Horizontal", 31))
sketch2.addConstraint(Sketcher.Constraint("Vertical", 32))
sketch2.addConstraint(Sketcher.Constraint("Horizontal", 33))
sketch2.addConstraint(Sketcher.Constraint("Vertical", 34))
sketch2.addConstraint(Sketcher.Constraint("Horizontal", 35))
sketch2.addConstraint(Sketcher.Constraint("Vertical", 36))
sketch2.addConstraint(Sketcher.Constraint("Horizontal", 37))
sketch2.addConstraint(Sketcher.Constraint("Vertical", 38))
sketch2.addConstraint(Sketcher.Constraint("Horizontal", 39))
sketch2.addConstraint(Sketcher.Constraint("Vertical", 40))
sketch2.addConstraint(Sketcher.Constraint("Horizontal", 41))
sketch2.addConstraint(Sketcher.Constraint("Vertical", 42))
sketch2.addConstraint(Sketcher.Constraint("Horizontal", 43))
sketch2.addConstraint(Sketcher.Constraint("Vertical", 44))
sketch2.addConstraint(Sketcher.Constraint("Horizontal", 45))
sketch2.addConstraint(Sketcher.Constraint("Vertical", 46))
sketch2.addConstraint(Sketcher.Constraint("Horizontal", 47))
sketch2.addConstraint(Sketcher.Constraint("Vertical", 48))
sketch2.addConstraint(Sketcher.Constraint("Horizontal", 49))
sketch2.addConstraint(Sketcher.Constraint("Vertical", 50))
sketch2.addConstraint(Sketcher.Constraint("Horizontal", 51))
sketch2.addConstraint(Sketcher.Constraint("Vertical", 52))
sketch2.addConstraint(Sketcher.Constraint("Horizontal", 53))
sketch2.addConstraint(Sketcher.Constraint("Vertical", 54))
sketch2.addConstraint(Sketcher.Constraint("Horizontal", 55))
sketch2.addConstraint(Sketcher.Constraint("Vertical", 56))
sketch2.addConstraint(Sketcher.Constraint("Horizontal", 57))
sketch2.addConstraint(Sketcher.Constraint("Vertical", 58))
sketch2.addConstraint(Sketcher.Constraint("Horizontal", 59))
sketch2.addConstraint(Sketcher.Constraint("Vertical", 60))
sketch2.addConstraint(Sketcher.Constraint("Horizontal", 61))
sketch2.addConstraint(Sketcher.Constraint("Vertical", 62))
sketch2.addConstraint(Sketcher.Constraint("Horizontal", 63))
sketch2.addConstraint(Sketcher.Constraint("Vertical", 64))
sketch2.addConstraint(Sketcher.Constraint("Horizontal", 65))
sketch2.addConstraint(Sketcher.Constraint("Vertical", 66))
sketch2.addConstraint(Sketcher.Constraint("Horizontal", 67))
sketch2.addConstraint(Sketcher.Constraint("Vertical", 68))
sketch2.addConstraint(Sketcher.Constraint("Horizontal", 69))
sketch2.addConstraint(Sketcher.Constraint("Vertical", 70))
sketch2.addConstraint(Sketcher.Constraint("Horizontal", 71))
sketch2.addConstraint(Sketcher.Constraint("Vertical", 72))
sketch2.addConstraint(Sketcher.Constraint("Horizontal", 73))
sketch2.addConstraint(Sketcher.Constraint("Vertical", 74))
sketch2.addConstraint(Sketcher.Constraint("Horizontal", 75))
sketch2.addConstraint(Sketcher.Constraint("Vertical", 76))
sketch2.addConstraint(Sketcher.Constraint("Horizontal", 77))
sketch2.addConstraint(Sketcher.Constraint("Vertical", 78))
sketch2.addConstraint(Sketcher.Constraint("Horizontal", 79))
sketch2.addConstraint(Sketcher.Constraint("Vertical", 80))
sketch2.addConstraint(Sketcher.Constraint("Horizontal", 81))
sketch2.addConstraint(Sketcher.Constraint("Vertical", 82))
sketch2.addConstraint(Sketcher.Constraint("Horizontal", 83))
sketch2.addConstraint(Sketcher.Constraint("Horizontal", 9, 2, 12, 2))
sketch2.addConstraint(Sketcher.Constraint("Horizontal", 5, 2, 16, 2))
sketch2.addConstraint(Sketcher.Constraint("Horizontal", 17, 2, 20, 2))
sketch2.addConstraint(Sketcher.Constraint("Horizontal", 29, 2, 32, 2))
sketch2.addConstraint(Sketcher.Constraint("Horizontal", 33, 2, 36, 2))
sketch2.addConstraint(Sketcher.Constraint("Horizontal", 35, 2, 38, 2))
sketch2.addConstraint(Sketcher.Constraint("Horizontal", 13, 2, 40, 2))
sketch2.addConstraint(Sketcher.Constraint("Horizontal", 39, 2, 42, 2))
sketch2.addConstraint(Sketcher.Constraint("Horizontal", 37, 2, 44, 2))
sketch2.addConstraint(Sketcher.Constraint("Horizontal", 43, 2, 46, 2))
sketch2.addConstraint(Sketcher.Constraint("Horizontal", 41, 2, 48, 2))
sketch2.addConstraint(Sketcher.Constraint("Horizontal", 47, 2, 50, 2))
sketch2.addConstraint(Sketcher.Constraint("Horizontal", 49, 2, 52, 2))
sketch2.addConstraint(Sketcher.Constraint("Horizontal", 51, 2, 54, 2))
sketch2.addConstraint(Sketcher.Constraint("Horizontal", 25, 2, 56, 2))
sketch2.addConstraint(Sketcher.Constraint("Horizontal", 21, 2, 60, 2))
sketch2.addConstraint(Sketcher.Constraint("Horizontal", 65, 2, 68, 2))
sketch2.addConstraint(Sketcher.Constraint("Horizontal", 57, 2, 80, 2))
sketch2.addConstraint(Sketcher.Constraint("Equal", 7, 9))
sketch2.addConstraint(Sketcher.Constraint("Equal", 11, 13))
sketch2.addConstraint(Sketcher.Constraint("Equal", 15, 17))
sketch2.addConstraint(Sketcher.Constraint("Equal", 19, 21))
sketch2.addConstraint(Sketcher.Constraint("Equal", 23, 25))
sketch2.addConstraint(Sketcher.Constraint("Equal", 27, 29))
sketch2.addConstraint(Sketcher.Constraint("Equal", 31, 33))
sketch2.addConstraint(Sketcher.Constraint("Equal", 35, 37))
sketch2.addConstraint(Sketcher.Constraint("Equal", 39, 41))
sketch2.addConstraint(Sketcher.Constraint("Equal", 43, 45))
sketch2.addConstraint(Sketcher.Constraint("Equal", 47, 49))
sketch2.addConstraint(Sketcher.Constraint("Equal", 51, 53))
sketch2.addConstraint(Sketcher.Constraint("Equal", 55, 57))
sketch2.addConstraint(Sketcher.Constraint("Equal", 59, 61))
sketch2.addConstraint(Sketcher.Constraint("Equal", 67, 69))
sketch2.addConstraint(Sketcher.Constraint("Equal", 71, 73))
sketch2.addConstraint(Sketcher.Constraint("Equal", 75, 77))
sketch2.addConstraint(Sketcher.Constraint("DistanceX", 81, 1, 81, 2, Q("0.451199 mm")))
sketch2.addConstraint(Sketcher.Constraint("DistanceX", 1, 1, 1, 2, Q("0.40073 mm")))
sketch2.addConstraint(Sketcher.Constraint("DistanceX", 65, 1, 65, 2, Q("0.448172 mm")))
sketch2.addConstraint(Sketcher.Constraint("DistanceY", 0, 2, 0, 1, Q("3.094508 mm")))
sketch2.addConstraint(Sketcher.Constraint("DistanceY", 12, 2, 12, 1, Q("6.723319 mm")))
sketch2.addConstraint(Sketcher.Constraint("DistanceY", 24, 2, 24, 1, Q("8.83827 mm")))
sketch2.addConstraint(Sketcher.Constraint("DistanceY", 32, 2, 32, 1, Q("9.506151 mm")))
sketch2.addConstraint(Sketcher.Constraint("DistanceY", 56, 2, 56, 1, Q("9.083159 mm")))
sketch2.addConstraint(Sketcher.Constraint("DistanceY", 64, 2, 64, 1, Q("8.174662 mm")))
sketch2.addConstraint(Sketcher.Constraint("DistanceY", 76, 2, 76, 1, Q("4.678918 mm")))
sketch2.addConstraint(Sketcher.Constraint("DistanceY", 18, 2, -1, 1, Q("18.3392 mm")))
sketch2.addConstraint(Sketcher.Constraint("DistanceX", 21, 2, -1, 1, Q("29.473601 mm")))
sketch2.addConstraint(Sketcher.Constraint("DistanceY", 28, 2, -1, 1, Q("26.086599 mm")))
sketch2.addConstraint(Sketcher.Constraint("DistanceX", 40, 2, -1, 1, Q("22.260502 mm")))
sketch2.addConstraint(Sketcher.Constraint("DistanceX", 5, 1, 5, 2, Q("0.445254 mm")))
sketch2.addConstraint(Sketcher.Constraint("DistanceY", 4, 2, 4, 1, Q("4.318954 mm")))
sketch2.addConstraint(Sketcher.Constraint("DistanceY", 8, 2, 8, 1, Q("5.565662 mm")))
sketch2.addConstraint(Sketcher.Constraint("DistanceY", 16, 2, 16, 1, Q("7.725138 mm")))
sketch2.addConstraint(Sketcher.Constraint("DistanceY", 20, 2, 20, 1, Q("8.370755 mm")))
sketch2.addConstraint(Sketcher.Constraint("DistanceY", 28, 2, 28, 1, Q("9.105423 mm")))
sketch2.addConstraint(Sketcher.Constraint("DistanceY", 40, 2, 40, 1, Q("9.439363 mm")))
sketch2.addConstraint(Sketcher.Constraint("DistanceY", 60, 2, 60, 1, Q("8.459806 mm")))
sketch2.addConstraint(Sketcher.Constraint("DistanceY", 68, 2, 68, 1, Q("6.776365 mm")))
sketch2.addConstraint(Sketcher.Constraint("DistanceY", 72, 2, 72, 1, Q("5.736604 mm")))
sketch2.addConstraint(Sketcher.Constraint("DistanceY", 80, 2, 80, 1, Q("3.560012 mm")))
sketch2.addConstraint(Sketcher.Constraint("DistanceY", 2, 2, -1, 1, Q("23.05888 mm")))
sketch2.addConstraint(Sketcher.Constraint("DistanceX", 5, 2, -1, 1, Q("36.107868 mm")))
sketch2.addConstraint(Sketcher.Constraint("DistanceX", 9, 2, -1, 1, Q("34.549482 mm")))
sketch2.addConstraint(Sketcher.Constraint("DistanceX", 13, 2, -1, 1, Q("32.657158 mm")))
sketch2.addConstraint(Sketcher.Constraint("DistanceX", 17, 2, -1, 1, Q("31.165561 mm")))
sketch2.addConstraint(Sketcher.Constraint("DistanceX", 24, 2, -1, 1, Q("28.13784 mm")))
sketch2.addConstraint(Sketcher.Constraint("DistanceX", 28, 2, -1, 1, Q("26.623981 mm")))
sketch2.addConstraint(Sketcher.Constraint("DistanceX", 32, 2, -1, 1, Q("25.021071 mm")))
sketch2.addConstraint(Sketcher.Constraint("DistanceX", 36, 2, -1, 1, Q("23.59626 mm")))
sketch2.addConstraint(Sketcher.Constraint("DistanceX", 45, 2, -1, 1, Q("20.479491 mm")))
sketch2.addConstraint(Sketcher.Constraint("DistanceX", 48, 2, -1, 1, Q("19.54446 mm")))
sketch2.addConstraint(Sketcher.Constraint("DistanceX", 53, 2, -1, 1, Q("17.540822 mm")))
sketch2.addConstraint(Sketcher.Constraint("DistanceX", 61, 2, -1, 1, Q("14.424051 mm")))
sketch2.addConstraint(Sketcher.Constraint("DistanceX", 64, 2, -1, 1, Q("13.45195 mm")))
sketch2.addConstraint(Sketcher.Constraint("DistanceX", 68, 2, -1, 1, Q("11.946091 mm")))
sketch2.addConstraint(Sketcher.Constraint("DistanceY", 70, 2, -1, 1, Q("19.265411 mm")))
sketch2.addConstraint(Sketcher.Constraint("DistanceX", 73, 2, -1, 1, Q("9.992061 mm")))
sketch2.addConstraint(Sketcher.Constraint("DistanceY", 74, 2, -1, 1, Q("20.376878 mm")))
sketch2.addConstraint(Sketcher.Constraint("DistanceY", 82, 2, -1, 1, Q("22.548851 mm")))
sketch2.addConstraint(Sketcher.Constraint("DistanceX", 0, 2, -1, 1, Q("38.156033 mm")))
sketch2.addConstraint(Sketcher.Constraint("DistanceX", 56, 2, -1, 1, Q("16.472215 mm")))
sketch2.addConstraint(Sketcher.Constraint("DistanceX", 76, 2, -1, 1, Q("8.701324 mm")))
sketch2.addConstraint(Sketcher.Constraint("DistanceY", 76, 2, -1, 1, Q("26.059702 mm")))
sketch2.addConstraint(Sketcher.Constraint("DistanceX", 80, 2, -1, 1, Q("7.025323 mm")))
pad2 = body.newObject("PartDesign::Pad", "Pad001")
pad2.Profile = sketch2
pad2.setExpression("Length", "Params.pad2_length")

doc.recompute()
